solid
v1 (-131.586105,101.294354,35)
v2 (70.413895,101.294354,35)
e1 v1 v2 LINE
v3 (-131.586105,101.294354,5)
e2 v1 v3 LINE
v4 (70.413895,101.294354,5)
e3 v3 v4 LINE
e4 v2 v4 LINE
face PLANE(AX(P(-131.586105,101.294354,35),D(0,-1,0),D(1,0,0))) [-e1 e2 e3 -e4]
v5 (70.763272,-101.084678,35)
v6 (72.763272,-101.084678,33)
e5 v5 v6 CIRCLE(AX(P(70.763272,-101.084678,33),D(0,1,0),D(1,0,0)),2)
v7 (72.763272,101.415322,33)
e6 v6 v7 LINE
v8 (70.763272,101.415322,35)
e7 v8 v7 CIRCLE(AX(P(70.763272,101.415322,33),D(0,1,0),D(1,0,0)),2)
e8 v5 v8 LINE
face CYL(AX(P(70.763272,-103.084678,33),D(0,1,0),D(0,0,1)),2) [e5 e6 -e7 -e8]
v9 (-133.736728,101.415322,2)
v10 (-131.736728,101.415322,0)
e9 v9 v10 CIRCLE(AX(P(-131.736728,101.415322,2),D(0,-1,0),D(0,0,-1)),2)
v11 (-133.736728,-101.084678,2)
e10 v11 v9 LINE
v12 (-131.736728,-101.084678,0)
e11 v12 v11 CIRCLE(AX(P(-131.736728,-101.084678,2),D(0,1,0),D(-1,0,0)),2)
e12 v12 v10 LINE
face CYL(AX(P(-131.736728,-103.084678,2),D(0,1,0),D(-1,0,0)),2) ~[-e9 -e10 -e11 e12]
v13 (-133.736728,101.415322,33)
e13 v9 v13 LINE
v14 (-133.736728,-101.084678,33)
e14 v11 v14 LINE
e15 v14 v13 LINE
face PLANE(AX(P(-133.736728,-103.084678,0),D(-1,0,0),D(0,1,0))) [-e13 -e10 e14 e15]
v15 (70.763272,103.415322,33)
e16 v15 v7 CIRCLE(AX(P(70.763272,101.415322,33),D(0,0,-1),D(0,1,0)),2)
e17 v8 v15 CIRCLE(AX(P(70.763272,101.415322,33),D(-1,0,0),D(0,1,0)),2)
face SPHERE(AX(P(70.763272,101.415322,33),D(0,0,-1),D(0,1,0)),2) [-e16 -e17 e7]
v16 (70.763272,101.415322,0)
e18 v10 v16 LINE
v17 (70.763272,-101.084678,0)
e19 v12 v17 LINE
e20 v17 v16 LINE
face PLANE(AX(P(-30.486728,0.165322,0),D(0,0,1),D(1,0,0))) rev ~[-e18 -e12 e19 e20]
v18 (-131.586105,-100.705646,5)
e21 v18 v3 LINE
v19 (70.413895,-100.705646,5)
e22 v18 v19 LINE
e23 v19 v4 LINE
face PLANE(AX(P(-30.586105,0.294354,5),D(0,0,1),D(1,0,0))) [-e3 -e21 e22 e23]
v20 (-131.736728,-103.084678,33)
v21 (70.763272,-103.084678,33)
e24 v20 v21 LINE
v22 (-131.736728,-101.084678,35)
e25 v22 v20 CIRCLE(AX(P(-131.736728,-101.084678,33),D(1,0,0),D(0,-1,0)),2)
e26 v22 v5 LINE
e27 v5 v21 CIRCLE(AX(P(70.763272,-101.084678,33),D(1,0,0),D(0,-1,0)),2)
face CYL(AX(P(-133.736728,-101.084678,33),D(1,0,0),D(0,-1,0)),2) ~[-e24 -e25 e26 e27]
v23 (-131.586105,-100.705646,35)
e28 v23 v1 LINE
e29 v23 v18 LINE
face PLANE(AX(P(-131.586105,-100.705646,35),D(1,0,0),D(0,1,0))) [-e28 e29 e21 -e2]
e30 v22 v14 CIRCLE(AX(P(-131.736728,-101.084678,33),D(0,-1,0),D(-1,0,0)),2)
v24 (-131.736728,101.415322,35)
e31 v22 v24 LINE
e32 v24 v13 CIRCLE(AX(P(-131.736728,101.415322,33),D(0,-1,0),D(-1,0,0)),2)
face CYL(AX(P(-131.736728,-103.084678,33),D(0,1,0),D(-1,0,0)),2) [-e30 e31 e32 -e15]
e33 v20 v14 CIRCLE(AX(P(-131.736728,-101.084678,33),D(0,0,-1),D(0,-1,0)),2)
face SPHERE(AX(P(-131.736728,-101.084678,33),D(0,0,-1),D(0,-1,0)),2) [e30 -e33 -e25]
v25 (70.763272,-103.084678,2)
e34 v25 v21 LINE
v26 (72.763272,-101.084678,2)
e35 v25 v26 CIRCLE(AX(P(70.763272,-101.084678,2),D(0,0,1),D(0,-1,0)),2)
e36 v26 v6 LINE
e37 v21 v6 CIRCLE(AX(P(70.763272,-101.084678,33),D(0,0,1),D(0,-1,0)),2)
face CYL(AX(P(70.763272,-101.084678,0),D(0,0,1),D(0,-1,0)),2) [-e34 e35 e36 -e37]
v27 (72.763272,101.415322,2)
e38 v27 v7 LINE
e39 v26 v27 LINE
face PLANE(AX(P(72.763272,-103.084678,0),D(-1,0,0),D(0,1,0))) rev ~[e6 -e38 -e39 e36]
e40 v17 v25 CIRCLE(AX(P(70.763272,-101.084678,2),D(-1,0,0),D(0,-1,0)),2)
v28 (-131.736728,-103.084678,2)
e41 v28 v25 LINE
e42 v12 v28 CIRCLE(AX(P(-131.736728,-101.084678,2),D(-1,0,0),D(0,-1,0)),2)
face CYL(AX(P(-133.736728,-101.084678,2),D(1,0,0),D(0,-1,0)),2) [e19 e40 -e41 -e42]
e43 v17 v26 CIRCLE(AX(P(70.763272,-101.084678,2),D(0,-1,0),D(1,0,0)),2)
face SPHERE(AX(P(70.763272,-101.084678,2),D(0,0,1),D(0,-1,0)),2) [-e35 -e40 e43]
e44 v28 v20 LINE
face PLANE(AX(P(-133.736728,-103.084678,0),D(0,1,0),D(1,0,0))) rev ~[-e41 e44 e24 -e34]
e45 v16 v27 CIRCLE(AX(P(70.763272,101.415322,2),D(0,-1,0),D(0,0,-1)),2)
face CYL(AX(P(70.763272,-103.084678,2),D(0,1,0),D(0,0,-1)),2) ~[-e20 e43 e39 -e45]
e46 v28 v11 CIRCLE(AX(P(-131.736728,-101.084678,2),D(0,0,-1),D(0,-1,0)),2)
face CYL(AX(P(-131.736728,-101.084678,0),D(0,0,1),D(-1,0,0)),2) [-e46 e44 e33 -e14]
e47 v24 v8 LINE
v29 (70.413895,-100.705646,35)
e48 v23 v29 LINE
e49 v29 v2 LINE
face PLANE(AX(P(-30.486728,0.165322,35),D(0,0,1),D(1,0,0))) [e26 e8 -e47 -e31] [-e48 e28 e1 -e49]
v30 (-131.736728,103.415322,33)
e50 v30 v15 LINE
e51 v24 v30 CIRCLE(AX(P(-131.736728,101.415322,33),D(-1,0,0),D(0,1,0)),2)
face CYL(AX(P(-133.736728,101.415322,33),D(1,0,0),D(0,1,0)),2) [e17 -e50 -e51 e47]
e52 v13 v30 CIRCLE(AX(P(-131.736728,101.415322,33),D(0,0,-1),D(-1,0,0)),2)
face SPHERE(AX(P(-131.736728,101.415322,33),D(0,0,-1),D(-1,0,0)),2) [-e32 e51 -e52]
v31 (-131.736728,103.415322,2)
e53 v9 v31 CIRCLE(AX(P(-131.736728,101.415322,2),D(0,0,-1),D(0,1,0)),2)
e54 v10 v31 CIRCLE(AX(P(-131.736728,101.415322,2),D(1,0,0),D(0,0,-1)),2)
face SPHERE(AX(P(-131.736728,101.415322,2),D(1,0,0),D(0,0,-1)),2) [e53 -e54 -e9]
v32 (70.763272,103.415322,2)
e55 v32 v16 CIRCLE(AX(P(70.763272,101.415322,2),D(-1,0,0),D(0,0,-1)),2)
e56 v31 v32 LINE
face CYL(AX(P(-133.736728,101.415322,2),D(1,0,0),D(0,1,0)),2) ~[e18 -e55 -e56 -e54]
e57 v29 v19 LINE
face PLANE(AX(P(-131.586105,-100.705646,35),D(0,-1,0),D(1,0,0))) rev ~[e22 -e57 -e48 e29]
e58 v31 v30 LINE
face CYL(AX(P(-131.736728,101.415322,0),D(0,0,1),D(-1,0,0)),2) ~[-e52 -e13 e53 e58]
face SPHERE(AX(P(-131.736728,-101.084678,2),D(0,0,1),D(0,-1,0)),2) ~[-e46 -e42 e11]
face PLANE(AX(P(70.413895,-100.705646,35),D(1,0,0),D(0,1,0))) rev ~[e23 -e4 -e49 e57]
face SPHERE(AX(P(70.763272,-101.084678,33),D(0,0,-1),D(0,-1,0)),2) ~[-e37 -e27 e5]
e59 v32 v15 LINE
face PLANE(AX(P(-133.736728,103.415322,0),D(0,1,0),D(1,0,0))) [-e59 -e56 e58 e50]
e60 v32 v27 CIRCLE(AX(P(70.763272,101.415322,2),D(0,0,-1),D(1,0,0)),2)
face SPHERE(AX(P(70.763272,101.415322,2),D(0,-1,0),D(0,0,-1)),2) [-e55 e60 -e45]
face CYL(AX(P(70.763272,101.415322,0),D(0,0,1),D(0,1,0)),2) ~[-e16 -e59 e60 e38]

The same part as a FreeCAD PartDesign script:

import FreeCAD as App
import Part
import Sketcher
from FreeCAD import Vector


def edges_at(feature, points):
    """Names of the edges that pass closest to the given points."""
    edges = feature.Shape.Edges
    near = lambda p: min(range(len(edges)), key=lambda i: edges[i].distToShape(Part.Vertex(*p))[0])
    return sorted({f"Edge{near(p) + 1}" for p in points})

doc = App.newDocument("Part")
params = doc.addObject("Spreadsheet::Sheet", "Params")
for row, (alias, value) in enumerate([
    ("sketch1_width", "206.5 mm"),
    ("pad1_length", "35 mm"),
    ("sketch2_width", "202 mm"),
    ("pocket1_length", "30 mm"),
    ("fillet_radius", "2 mm"),
], start=1):
    params.set(f"A{row}", alias)
    params.set(f"B{row}", "=" + value)
    params.setAlias(f"B{row}", alias)

body = doc.addObject("PartDesign::Body", "Body")

# Sketch on XY plane
sketch1 = body.newObject("Sketcher::SketchObject", "Sketch")
sketch1.AttachmentSupport = (doc.getObject("XY_Plane"), [""])
sketch1.MapMode = "FlatFace"
sketch1.addGeometry([
    Part.LineSegment(Vector(-134, 103, 0), Vector(-134, -103, 0)),
    Part.LineSegment(Vector(-134, -103, 0), Vector(73, -103, 0)),
    Part.LineSegment(Vector(73, -103, 0), Vector(73, 103, 0)),
    Part.LineSegment(Vector(73, 103, 0), Vector(-134, 103, 0)),
], False)
sketch1.addConstraint([
    Sketcher.Constraint("Coincident", 0, 2, 1, 1),
    Sketcher.Constraint("Coincident", 1, 2, 2, 1),
    Sketcher.Constraint("Coincident", 2, 2, 3, 1),
    Sketcher.Constraint("Coincident", 3, 2, 0, 1),
    Sketcher.Constraint("Vertical", 0),
    Sketcher.Constraint("Horizontal", 1),
    Sketcher.Constraint("Vertical", 2),
    Sketcher.Constraint("Horizontal", 3),
    Sketcher.Constraint("Equal", 3, 0),
    Sketcher.Constraint("DistanceX", 1, 1, 1, 2, 206.5),
    Sketcher.Constraint("DistanceX", 0, 2, -1, 1, 133.736728),
    Sketcher.Constraint("DistanceY", 0, 2, -1, 1, 103.084678),
])
sketch1.setExpression("Constraints[9]", "Params.sketch1_width")
pad1 = body.newObject("PartDesign::Pad", "Pad")
pad1.Profile = sketch1
pad1.setExpression("Length", "Params.pad1_length")

# Sketch on XY plane
sketch2 = body.newObject("Sketcher::SketchObject", "Sketch001")
sketch2.AttachmentSupport = (doc.getObject("XY_Plane"), [""])
sketch2.MapMode = "FlatFace"
sketch2.AttachmentOffset = App.Placement(Vector(0, 0, 35), App.Rotation())
sketch2.addGeometry([
    Part.LineSegment(Vector(-132, 101, 0), Vector(-132, -101, 0)),
    Part.LineSegment(Vector(-132, -101, 0), Vector(70, -101, 0)),
    Part.LineSegment(Vector(70, -101, 0), Vector(70, 101, 0)),
    Part.LineSegment(Vector(70, 101, 0), Vector(-132, 101, 0)),
], False)
sketch2.addConstraint([
    Sketcher.Constraint("Coincident", 0, 2, 1, 1),
    Sketcher.Constraint("Coincident", 1, 2, 2, 1),
    Sketcher.Constraint("Coincident", 2, 2, 3, 1),
    Sketcher.Constraint("Coincident", 3, 2, 0, 1),
    Sketcher.Constraint("Vertical", 0),
    Sketcher.Constraint("Horizontal", 1),
    Sketcher.Constraint("Vertical", 2),
    Sketcher.Constraint("Horizontal", 3),
    Sketcher.Constraint("Equal", 3, 0),
    Sketcher.Constraint("DistanceX", 1, 1, 1, 2, 202.0),
    Sketcher.Constraint("DistanceX", 0, 2, -1, 1, 131.586105),
    Sketcher.Constraint("DistanceY", 0, 2, -1, 1, 100.705646),
])
sketch2.setExpression("Constraints[9]", "Params.sketch2_width")
pocket1 = body.newObject("PartDesign::Pocket", "Pocket")
pocket1.Profile = sketch2
pocket1.setExpression("Length", "Params.pocket1_length")
doc.recompute()

fillet = body.newObject("PartDesign::Fillet", "Fillet")
fillet.Base = (pocket1, edges_at(pocket1, [
    (-133.737, -103.085, 17.5),
    (72.763, -103.085, 17.5),
    (-30.487, -103.085, 0),
    (-30.487, -103.085, 35),
    (72.763, 0.165, 0),
    (-30.487, 103.415, 0),
    (-133.737, 0.165, 0),
    (-133.737, 103.415, 17.5),
    (-133.737, 0.165, 35),
    (72.763, 103.415, 17.5),
    (-30.487, 103.415, 35),
    (72.763, 0.165, 35),
]))
fillet.setExpression("Radius", "Params.fillet_radius")

doc.recompute()
